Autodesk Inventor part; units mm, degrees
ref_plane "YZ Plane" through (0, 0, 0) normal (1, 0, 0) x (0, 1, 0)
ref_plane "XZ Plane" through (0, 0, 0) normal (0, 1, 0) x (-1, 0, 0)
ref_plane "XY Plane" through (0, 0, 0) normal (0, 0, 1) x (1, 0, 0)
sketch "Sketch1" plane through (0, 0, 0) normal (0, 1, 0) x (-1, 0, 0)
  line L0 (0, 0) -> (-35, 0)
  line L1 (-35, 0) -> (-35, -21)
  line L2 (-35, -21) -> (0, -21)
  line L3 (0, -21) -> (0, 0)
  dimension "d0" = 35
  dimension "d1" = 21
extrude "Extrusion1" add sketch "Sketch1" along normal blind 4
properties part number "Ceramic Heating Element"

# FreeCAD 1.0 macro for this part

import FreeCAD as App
import Part
import Sketcher
from FreeCAD import Vector


def add_polygon(sketch, points):
    """Adds a closed chain of lines whose ends are joined by coincident constraints."""
    first, n = sketch.GeometryCount, len(points)
    for a, b in zip(points, points[1:] + points[:1]):
        sketch.addGeometry(Part.LineSegment(App.Vector(*a, 0), App.Vector(*b, 0)), False)
    for i in range(n):
        sketch.addConstraint(Sketcher.Constraint("Coincident", first + i, 2, first + (i + 1) % n, 1))

doc = App.newDocument("Part")
body = doc.addObject("PartDesign::Body", "Body")

sketch1 = body.newObject("Sketcher::SketchObject", "Sketch")
sketch1.AttachmentSupport = (doc.getObject("XZ_Plane"), [""])
sketch1.MapMode = "FlatFace"
add_polygon(sketch1, [(0, -21), (0, 0), (35, 0), (35, -21)])
sketch1.addConstraint([
    Sketcher.Constraint("Vertical", 0),
    Sketcher.Constraint("Horizontal", 1),
    Sketcher.Constraint("Vertical", 2),
    Sketcher.Constraint("Horizontal", 3),
    Sketcher.Constraint("Coincident", 0, 2, -1, 1),
    Sketcher.Constraint("DistanceX", 1, 1, 1, 2, 35.0),
    Sketcher.Constraint("DistanceY", 0, 1, 0, 2, 21.0),
])
pad1 = body.newObject("PartDesign::Pad", "Pad")
pad1.Profile = sketch1
pad1.Length = 4
pad1.Reversed = True

doc.recompute()
